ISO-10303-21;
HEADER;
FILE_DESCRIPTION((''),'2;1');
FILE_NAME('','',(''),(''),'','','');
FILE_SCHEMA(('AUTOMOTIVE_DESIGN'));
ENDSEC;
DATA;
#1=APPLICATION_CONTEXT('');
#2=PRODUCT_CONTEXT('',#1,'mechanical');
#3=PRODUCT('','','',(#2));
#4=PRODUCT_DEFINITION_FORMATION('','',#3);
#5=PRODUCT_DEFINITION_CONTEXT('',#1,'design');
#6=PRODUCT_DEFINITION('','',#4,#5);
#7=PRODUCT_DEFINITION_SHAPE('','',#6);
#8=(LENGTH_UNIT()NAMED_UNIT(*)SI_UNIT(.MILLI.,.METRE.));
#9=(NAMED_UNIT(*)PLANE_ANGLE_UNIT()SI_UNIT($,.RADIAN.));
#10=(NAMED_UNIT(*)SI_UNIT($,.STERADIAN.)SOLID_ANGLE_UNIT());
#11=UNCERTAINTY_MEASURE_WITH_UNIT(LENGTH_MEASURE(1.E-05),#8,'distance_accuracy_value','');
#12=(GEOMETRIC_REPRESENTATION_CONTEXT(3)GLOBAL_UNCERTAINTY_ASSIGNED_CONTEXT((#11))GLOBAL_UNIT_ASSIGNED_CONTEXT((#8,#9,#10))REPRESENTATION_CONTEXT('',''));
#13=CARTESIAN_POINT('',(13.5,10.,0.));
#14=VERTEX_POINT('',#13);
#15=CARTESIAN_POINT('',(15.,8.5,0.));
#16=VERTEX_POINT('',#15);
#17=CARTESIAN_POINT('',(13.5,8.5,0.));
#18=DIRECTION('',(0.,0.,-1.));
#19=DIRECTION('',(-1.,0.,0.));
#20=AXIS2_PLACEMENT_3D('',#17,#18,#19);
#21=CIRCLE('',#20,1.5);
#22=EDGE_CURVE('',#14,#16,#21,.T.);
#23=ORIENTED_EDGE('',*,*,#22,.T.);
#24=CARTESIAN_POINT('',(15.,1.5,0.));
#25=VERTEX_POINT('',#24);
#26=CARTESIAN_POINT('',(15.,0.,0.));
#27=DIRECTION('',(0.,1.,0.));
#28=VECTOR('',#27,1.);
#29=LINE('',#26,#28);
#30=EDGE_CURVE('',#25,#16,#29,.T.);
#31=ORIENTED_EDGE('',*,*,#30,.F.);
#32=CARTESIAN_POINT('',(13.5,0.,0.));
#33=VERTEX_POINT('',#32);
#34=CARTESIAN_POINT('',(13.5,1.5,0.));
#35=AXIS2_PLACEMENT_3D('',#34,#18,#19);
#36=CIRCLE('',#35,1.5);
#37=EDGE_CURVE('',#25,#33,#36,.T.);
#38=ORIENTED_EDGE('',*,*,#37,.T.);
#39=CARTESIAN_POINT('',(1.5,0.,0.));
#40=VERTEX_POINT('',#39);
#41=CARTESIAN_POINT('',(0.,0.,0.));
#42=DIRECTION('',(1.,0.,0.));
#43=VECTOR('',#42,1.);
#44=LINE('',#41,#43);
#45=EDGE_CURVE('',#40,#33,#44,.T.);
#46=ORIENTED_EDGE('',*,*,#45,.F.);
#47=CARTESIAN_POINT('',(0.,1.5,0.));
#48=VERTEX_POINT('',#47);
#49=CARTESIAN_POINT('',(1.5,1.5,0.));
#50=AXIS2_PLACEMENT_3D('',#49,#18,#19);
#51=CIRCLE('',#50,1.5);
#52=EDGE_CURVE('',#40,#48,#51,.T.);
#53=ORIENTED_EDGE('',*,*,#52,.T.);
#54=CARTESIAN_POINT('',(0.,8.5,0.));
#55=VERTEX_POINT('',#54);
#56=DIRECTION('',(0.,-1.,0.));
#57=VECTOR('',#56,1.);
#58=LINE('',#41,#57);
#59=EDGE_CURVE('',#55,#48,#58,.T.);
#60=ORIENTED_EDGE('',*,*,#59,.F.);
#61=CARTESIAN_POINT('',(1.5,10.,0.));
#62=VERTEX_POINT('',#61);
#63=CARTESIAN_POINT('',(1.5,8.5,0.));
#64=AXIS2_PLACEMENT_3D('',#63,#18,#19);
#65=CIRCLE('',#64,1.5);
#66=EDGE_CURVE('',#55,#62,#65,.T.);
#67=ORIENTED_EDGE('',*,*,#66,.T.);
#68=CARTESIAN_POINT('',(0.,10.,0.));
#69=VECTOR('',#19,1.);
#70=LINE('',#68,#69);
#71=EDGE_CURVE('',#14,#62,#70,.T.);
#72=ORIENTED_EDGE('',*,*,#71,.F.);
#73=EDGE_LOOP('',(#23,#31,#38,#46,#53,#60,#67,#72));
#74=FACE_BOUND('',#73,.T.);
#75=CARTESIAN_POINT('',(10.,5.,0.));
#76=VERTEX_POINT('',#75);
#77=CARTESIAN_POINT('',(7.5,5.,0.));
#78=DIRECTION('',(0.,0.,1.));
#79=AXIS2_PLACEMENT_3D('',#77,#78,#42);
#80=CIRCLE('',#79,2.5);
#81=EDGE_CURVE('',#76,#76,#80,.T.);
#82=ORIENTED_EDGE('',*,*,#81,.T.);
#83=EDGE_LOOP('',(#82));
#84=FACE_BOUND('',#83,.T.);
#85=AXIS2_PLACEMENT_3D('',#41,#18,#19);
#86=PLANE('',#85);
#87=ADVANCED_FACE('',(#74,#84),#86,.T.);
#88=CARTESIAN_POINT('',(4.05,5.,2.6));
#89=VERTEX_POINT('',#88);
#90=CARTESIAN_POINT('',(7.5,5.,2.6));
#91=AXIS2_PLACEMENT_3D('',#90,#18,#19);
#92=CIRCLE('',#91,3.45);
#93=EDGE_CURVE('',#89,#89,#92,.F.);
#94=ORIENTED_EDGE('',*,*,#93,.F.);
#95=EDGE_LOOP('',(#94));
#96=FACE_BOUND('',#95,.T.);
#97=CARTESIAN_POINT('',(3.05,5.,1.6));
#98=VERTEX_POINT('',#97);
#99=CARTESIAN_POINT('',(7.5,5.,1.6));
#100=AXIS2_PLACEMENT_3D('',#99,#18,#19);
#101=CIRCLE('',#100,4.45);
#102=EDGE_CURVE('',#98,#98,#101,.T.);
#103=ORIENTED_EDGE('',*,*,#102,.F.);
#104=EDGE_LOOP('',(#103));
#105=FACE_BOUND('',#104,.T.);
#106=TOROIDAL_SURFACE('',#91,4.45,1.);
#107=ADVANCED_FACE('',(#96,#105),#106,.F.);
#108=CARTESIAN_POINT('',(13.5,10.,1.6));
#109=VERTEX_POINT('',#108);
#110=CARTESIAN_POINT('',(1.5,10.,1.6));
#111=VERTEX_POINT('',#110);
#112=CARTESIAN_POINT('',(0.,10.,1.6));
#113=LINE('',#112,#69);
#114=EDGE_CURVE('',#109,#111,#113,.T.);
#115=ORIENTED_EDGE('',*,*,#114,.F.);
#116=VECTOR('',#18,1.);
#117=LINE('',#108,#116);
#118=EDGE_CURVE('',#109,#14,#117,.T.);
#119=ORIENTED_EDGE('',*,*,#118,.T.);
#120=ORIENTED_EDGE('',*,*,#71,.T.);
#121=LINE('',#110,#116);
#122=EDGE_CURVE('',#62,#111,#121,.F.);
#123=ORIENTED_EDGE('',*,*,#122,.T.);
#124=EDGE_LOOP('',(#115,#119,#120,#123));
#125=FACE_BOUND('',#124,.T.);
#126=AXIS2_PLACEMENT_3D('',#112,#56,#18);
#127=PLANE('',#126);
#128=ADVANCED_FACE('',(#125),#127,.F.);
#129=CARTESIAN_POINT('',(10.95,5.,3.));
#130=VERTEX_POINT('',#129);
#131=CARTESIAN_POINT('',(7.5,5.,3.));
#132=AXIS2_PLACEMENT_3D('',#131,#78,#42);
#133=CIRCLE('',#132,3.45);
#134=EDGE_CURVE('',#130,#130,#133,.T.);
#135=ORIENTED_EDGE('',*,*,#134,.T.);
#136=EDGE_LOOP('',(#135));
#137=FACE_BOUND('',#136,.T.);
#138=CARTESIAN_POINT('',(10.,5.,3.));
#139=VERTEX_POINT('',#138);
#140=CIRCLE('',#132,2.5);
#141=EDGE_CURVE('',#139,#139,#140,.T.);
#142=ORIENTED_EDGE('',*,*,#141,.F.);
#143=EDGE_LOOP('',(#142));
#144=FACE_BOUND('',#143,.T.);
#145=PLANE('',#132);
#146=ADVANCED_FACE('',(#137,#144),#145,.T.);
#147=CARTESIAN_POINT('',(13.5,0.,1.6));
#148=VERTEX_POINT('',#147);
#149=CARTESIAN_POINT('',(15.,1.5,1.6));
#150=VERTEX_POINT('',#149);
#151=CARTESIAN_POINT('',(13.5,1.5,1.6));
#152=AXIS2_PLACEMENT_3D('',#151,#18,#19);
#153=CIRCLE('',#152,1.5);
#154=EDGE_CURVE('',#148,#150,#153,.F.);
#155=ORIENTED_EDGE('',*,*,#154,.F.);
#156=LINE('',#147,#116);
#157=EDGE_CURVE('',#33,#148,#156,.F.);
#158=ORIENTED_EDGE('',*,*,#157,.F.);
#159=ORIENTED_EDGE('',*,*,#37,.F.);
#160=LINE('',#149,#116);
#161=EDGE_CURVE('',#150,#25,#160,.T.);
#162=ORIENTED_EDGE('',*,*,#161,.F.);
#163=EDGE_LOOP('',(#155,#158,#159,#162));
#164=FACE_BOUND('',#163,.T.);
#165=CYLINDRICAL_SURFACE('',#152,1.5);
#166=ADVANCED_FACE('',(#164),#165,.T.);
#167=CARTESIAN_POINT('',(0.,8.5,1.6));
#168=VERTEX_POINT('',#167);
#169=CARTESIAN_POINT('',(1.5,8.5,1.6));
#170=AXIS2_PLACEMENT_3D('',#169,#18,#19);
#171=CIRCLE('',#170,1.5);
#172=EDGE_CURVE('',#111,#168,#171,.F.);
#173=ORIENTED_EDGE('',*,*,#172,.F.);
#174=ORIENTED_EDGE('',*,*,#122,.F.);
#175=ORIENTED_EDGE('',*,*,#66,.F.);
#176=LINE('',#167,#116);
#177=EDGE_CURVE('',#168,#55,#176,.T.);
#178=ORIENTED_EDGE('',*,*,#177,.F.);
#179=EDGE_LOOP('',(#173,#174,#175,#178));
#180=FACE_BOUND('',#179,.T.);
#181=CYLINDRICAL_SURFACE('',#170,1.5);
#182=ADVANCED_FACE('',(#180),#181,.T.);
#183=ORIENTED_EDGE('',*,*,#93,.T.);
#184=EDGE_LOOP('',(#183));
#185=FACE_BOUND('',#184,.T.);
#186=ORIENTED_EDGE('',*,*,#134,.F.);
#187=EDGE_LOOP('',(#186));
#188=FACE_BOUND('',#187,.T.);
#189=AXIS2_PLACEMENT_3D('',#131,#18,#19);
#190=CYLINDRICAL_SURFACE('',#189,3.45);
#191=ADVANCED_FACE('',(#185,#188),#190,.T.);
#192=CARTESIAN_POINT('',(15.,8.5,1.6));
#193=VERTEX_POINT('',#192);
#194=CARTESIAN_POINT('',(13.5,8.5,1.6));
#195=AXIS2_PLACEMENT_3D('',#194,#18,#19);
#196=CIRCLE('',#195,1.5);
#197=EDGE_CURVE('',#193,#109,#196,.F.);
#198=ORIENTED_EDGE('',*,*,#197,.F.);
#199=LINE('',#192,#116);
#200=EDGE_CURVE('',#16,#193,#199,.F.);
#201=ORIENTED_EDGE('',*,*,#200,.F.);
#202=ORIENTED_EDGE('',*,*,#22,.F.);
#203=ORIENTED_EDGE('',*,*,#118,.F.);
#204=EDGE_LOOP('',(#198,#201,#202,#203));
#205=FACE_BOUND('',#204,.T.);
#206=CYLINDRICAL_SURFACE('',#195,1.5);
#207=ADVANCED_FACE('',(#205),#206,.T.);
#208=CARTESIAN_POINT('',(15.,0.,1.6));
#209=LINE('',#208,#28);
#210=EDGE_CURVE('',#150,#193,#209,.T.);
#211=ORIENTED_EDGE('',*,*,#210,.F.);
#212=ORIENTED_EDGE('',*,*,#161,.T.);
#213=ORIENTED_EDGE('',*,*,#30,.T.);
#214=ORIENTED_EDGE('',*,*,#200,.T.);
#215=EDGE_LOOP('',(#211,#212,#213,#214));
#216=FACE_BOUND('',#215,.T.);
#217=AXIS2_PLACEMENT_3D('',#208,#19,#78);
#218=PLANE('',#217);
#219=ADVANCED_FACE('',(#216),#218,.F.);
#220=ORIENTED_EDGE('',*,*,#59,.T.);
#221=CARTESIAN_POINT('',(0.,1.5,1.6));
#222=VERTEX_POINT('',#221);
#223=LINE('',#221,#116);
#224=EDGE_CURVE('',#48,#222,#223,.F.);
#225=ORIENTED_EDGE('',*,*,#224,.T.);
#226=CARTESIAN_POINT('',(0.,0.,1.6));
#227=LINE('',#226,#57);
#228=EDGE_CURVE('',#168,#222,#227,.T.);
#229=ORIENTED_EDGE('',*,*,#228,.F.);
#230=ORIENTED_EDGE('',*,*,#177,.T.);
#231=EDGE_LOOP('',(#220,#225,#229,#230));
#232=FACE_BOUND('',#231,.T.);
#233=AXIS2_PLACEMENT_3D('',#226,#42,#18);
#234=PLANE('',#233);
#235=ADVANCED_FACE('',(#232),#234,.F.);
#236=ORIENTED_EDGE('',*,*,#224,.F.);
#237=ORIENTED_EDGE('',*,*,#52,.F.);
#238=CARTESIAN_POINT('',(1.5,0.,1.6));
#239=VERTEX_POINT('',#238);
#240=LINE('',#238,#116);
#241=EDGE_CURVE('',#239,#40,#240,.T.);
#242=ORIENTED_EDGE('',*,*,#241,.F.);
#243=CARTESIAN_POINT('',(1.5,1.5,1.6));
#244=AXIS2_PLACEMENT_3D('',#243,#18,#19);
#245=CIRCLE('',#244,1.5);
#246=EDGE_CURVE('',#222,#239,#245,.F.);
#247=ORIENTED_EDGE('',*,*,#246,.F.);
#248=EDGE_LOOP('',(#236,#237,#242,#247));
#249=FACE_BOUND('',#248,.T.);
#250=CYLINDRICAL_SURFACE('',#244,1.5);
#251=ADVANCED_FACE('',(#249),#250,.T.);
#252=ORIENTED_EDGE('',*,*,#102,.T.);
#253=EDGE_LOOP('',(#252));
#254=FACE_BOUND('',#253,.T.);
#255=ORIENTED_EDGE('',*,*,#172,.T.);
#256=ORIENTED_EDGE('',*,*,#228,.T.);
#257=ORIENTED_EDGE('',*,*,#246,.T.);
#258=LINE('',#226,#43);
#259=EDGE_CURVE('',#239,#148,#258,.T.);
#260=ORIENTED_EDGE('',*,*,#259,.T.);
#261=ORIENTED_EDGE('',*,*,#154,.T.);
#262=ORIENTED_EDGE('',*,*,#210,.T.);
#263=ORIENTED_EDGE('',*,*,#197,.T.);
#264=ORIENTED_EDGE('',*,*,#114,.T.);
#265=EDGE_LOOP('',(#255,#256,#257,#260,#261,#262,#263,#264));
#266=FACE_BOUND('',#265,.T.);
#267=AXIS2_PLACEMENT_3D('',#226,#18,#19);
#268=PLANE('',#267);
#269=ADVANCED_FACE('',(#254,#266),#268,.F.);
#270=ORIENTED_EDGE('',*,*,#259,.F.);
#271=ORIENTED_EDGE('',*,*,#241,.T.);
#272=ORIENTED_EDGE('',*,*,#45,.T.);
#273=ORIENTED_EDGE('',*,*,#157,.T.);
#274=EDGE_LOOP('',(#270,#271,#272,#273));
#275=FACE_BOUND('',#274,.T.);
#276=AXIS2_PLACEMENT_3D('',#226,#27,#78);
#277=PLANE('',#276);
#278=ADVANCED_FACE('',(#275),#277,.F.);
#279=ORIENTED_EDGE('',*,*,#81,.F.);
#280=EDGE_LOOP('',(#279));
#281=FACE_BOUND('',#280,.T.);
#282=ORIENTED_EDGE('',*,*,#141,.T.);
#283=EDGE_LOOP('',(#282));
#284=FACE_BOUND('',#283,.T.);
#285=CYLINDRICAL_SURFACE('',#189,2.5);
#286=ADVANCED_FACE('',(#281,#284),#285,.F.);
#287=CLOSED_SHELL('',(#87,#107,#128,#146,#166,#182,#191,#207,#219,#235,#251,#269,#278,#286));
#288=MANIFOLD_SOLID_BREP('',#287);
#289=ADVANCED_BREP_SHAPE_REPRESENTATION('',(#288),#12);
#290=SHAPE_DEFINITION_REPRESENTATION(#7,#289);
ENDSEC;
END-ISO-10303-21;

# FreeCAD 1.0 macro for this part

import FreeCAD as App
import Part
import Sketcher

V = App.Vector
Q = App.Units.Quantity


def edges_at(feature, points):
    """Names of the edges that pass closest to the given points."""
    edges = feature.Shape.Edges
    near = lambda p: min(range(len(edges)), key=lambda i: edges[i].distToShape(Part.Vertex(*p))[0])
    return sorted({f"Edge{near(p) + 1}" for p in points})

doc = App.newDocument("Part")
body = doc.addObject("PartDesign::Body", "Body")

# Sketch on XY plane
sketch1 = body.newObject("Sketcher::SketchObject", "Sketch")
sketch1.AttachmentSupport = (doc.getObject("XY_Plane"), [""])
sketch1.MapMode = "FlatFace"
sketch1.addGeometry(Part.LineSegment(V(0, 10, 0), V(0, 0, 0)), False)
sketch1.addGeometry(Part.LineSegment(V(0, 0, 0), V(15, 0, 0)), False)
sketch1.addGeometry(Part.LineSegment(V(15, 0, 0), V(15, 10, 0)), False)
sketch1.addGeometry(Part.LineSegment(V(15, 10, 0), V(0, 10, 0)), False)
sketch1.addConstraint(Sketcher.Constraint("Coincident", 0, 2, 1, 1))
sketch1.addConstraint(Sketcher.Constraint("Coincident", 1, 2, 2, 1))
sketch1.addConstraint(Sketcher.Constraint("Coincident", 2, 2, 3, 1))
sketch1.addConstraint(Sketcher.Constraint("Coincident", 3, 2, 0, 1))
sketch1.addConstraint(Sketcher.Constraint("Vertical", 0))
sketch1.addConstraint(Sketcher.Constraint("Horizontal", 1))
sketch1.addConstraint(Sketcher.Constraint("Vertical", 2))
sketch1.addConstraint(Sketcher.Constraint("Horizontal", 3))
sketch1.addConstraint(Sketcher.Constraint("Coincident", 0, 2, -1, 1))
sketch1.addConstraint(Sketcher.Constraint("DistanceX", 1, 1, 1, 2, Q("15 mm")))
sketch1.addConstraint(Sketcher.Constraint("DistanceY", 0, 2, 0, 1, Q("10 mm")))
pad1 = body.newObject("PartDesign::Pad", "Pad")
pad1.Profile = sketch1
pad1.Length = 1.6
doc.recompute()

fillet = body.newObject("PartDesign::Fillet", "Fillet")
fillet.Base = (pad1, edges_at(pad1, [
    (0, 10, 0.8),
    (15, 10, 0.8),
    (15, 0, 0.8),
    (0, 0, 0.8),
]))
fillet.Radius = 1.5

# Sketch on XY plane
sketch2 = body.newObject("Sketcher::SketchObject", "Sketch001")
sketch2.AttachmentSupport = (doc.getObject("XY_Plane"), [""])
sketch2.MapMode = "FlatFace"
sketch2.AttachmentOffset = App.Placement(V(0, 0, 1.6), App.Rotation())
sketch2.addGeometry(Part.Circle(V(7.5, 5, 0), V(0, 0, 1), 3.5), False)
sketch2.addConstraint(Sketcher.Constraint("Diameter", 0, Q("6.9 mm")))
sketch2.addConstraint(Sketcher.Constraint("DistanceY", -1, 1, 0, 3, Q("5 mm")))
sketch2.addConstraint(Sketcher.Constraint("DistanceX", -1, 1, 0, 3, Q("7.5 mm")))
pad2 = body.newObject("PartDesign::Pad", "Pad001")
pad2.Profile = sketch2
pad2.Length = 1.4

# Sketch on XY plane
sketch3 = body.newObject("Sketcher::SketchObject", "Sketch002")
sketch3.AttachmentSupport = (doc.getObject("XY_Plane"), [""])
sketch3.MapMode = "FlatFace"
sketch3.AttachmentOffset = App.Placement(V(0, 0, 1.6), App.Rotation())
sketch3.addGeometry(Part.Circle(V(7.5, 5, 0), V(0, 0, 1), 2.5), False)
sketch3.addConstraint(Sketcher.Constraint("Diameter", 0, Q("5 mm")))
sketch3.addConstraint(Sketcher.Constraint("DistanceY", -1, 1, 0, 3, Q("5 mm")))
sketch3.addConstraint(Sketcher.Constraint("DistanceX", -1, 1, 0, 3, Q("7.5 mm")))
pocket1 = body.newObject("PartDesign::Pocket", "Pocket")
pocket1.Profile = sketch3
pocket1.Type = "ThroughAll"
pocket1.Midplane = True
doc.recompute()

fillet2 = body.newObject("PartDesign::Fillet", "Fillet001")
fillet2.Base = (pocket1, edges_at(pocket1, [(4.05, 5, 1.6)]))
fillet2.Radius = 1

doc.recompute()
